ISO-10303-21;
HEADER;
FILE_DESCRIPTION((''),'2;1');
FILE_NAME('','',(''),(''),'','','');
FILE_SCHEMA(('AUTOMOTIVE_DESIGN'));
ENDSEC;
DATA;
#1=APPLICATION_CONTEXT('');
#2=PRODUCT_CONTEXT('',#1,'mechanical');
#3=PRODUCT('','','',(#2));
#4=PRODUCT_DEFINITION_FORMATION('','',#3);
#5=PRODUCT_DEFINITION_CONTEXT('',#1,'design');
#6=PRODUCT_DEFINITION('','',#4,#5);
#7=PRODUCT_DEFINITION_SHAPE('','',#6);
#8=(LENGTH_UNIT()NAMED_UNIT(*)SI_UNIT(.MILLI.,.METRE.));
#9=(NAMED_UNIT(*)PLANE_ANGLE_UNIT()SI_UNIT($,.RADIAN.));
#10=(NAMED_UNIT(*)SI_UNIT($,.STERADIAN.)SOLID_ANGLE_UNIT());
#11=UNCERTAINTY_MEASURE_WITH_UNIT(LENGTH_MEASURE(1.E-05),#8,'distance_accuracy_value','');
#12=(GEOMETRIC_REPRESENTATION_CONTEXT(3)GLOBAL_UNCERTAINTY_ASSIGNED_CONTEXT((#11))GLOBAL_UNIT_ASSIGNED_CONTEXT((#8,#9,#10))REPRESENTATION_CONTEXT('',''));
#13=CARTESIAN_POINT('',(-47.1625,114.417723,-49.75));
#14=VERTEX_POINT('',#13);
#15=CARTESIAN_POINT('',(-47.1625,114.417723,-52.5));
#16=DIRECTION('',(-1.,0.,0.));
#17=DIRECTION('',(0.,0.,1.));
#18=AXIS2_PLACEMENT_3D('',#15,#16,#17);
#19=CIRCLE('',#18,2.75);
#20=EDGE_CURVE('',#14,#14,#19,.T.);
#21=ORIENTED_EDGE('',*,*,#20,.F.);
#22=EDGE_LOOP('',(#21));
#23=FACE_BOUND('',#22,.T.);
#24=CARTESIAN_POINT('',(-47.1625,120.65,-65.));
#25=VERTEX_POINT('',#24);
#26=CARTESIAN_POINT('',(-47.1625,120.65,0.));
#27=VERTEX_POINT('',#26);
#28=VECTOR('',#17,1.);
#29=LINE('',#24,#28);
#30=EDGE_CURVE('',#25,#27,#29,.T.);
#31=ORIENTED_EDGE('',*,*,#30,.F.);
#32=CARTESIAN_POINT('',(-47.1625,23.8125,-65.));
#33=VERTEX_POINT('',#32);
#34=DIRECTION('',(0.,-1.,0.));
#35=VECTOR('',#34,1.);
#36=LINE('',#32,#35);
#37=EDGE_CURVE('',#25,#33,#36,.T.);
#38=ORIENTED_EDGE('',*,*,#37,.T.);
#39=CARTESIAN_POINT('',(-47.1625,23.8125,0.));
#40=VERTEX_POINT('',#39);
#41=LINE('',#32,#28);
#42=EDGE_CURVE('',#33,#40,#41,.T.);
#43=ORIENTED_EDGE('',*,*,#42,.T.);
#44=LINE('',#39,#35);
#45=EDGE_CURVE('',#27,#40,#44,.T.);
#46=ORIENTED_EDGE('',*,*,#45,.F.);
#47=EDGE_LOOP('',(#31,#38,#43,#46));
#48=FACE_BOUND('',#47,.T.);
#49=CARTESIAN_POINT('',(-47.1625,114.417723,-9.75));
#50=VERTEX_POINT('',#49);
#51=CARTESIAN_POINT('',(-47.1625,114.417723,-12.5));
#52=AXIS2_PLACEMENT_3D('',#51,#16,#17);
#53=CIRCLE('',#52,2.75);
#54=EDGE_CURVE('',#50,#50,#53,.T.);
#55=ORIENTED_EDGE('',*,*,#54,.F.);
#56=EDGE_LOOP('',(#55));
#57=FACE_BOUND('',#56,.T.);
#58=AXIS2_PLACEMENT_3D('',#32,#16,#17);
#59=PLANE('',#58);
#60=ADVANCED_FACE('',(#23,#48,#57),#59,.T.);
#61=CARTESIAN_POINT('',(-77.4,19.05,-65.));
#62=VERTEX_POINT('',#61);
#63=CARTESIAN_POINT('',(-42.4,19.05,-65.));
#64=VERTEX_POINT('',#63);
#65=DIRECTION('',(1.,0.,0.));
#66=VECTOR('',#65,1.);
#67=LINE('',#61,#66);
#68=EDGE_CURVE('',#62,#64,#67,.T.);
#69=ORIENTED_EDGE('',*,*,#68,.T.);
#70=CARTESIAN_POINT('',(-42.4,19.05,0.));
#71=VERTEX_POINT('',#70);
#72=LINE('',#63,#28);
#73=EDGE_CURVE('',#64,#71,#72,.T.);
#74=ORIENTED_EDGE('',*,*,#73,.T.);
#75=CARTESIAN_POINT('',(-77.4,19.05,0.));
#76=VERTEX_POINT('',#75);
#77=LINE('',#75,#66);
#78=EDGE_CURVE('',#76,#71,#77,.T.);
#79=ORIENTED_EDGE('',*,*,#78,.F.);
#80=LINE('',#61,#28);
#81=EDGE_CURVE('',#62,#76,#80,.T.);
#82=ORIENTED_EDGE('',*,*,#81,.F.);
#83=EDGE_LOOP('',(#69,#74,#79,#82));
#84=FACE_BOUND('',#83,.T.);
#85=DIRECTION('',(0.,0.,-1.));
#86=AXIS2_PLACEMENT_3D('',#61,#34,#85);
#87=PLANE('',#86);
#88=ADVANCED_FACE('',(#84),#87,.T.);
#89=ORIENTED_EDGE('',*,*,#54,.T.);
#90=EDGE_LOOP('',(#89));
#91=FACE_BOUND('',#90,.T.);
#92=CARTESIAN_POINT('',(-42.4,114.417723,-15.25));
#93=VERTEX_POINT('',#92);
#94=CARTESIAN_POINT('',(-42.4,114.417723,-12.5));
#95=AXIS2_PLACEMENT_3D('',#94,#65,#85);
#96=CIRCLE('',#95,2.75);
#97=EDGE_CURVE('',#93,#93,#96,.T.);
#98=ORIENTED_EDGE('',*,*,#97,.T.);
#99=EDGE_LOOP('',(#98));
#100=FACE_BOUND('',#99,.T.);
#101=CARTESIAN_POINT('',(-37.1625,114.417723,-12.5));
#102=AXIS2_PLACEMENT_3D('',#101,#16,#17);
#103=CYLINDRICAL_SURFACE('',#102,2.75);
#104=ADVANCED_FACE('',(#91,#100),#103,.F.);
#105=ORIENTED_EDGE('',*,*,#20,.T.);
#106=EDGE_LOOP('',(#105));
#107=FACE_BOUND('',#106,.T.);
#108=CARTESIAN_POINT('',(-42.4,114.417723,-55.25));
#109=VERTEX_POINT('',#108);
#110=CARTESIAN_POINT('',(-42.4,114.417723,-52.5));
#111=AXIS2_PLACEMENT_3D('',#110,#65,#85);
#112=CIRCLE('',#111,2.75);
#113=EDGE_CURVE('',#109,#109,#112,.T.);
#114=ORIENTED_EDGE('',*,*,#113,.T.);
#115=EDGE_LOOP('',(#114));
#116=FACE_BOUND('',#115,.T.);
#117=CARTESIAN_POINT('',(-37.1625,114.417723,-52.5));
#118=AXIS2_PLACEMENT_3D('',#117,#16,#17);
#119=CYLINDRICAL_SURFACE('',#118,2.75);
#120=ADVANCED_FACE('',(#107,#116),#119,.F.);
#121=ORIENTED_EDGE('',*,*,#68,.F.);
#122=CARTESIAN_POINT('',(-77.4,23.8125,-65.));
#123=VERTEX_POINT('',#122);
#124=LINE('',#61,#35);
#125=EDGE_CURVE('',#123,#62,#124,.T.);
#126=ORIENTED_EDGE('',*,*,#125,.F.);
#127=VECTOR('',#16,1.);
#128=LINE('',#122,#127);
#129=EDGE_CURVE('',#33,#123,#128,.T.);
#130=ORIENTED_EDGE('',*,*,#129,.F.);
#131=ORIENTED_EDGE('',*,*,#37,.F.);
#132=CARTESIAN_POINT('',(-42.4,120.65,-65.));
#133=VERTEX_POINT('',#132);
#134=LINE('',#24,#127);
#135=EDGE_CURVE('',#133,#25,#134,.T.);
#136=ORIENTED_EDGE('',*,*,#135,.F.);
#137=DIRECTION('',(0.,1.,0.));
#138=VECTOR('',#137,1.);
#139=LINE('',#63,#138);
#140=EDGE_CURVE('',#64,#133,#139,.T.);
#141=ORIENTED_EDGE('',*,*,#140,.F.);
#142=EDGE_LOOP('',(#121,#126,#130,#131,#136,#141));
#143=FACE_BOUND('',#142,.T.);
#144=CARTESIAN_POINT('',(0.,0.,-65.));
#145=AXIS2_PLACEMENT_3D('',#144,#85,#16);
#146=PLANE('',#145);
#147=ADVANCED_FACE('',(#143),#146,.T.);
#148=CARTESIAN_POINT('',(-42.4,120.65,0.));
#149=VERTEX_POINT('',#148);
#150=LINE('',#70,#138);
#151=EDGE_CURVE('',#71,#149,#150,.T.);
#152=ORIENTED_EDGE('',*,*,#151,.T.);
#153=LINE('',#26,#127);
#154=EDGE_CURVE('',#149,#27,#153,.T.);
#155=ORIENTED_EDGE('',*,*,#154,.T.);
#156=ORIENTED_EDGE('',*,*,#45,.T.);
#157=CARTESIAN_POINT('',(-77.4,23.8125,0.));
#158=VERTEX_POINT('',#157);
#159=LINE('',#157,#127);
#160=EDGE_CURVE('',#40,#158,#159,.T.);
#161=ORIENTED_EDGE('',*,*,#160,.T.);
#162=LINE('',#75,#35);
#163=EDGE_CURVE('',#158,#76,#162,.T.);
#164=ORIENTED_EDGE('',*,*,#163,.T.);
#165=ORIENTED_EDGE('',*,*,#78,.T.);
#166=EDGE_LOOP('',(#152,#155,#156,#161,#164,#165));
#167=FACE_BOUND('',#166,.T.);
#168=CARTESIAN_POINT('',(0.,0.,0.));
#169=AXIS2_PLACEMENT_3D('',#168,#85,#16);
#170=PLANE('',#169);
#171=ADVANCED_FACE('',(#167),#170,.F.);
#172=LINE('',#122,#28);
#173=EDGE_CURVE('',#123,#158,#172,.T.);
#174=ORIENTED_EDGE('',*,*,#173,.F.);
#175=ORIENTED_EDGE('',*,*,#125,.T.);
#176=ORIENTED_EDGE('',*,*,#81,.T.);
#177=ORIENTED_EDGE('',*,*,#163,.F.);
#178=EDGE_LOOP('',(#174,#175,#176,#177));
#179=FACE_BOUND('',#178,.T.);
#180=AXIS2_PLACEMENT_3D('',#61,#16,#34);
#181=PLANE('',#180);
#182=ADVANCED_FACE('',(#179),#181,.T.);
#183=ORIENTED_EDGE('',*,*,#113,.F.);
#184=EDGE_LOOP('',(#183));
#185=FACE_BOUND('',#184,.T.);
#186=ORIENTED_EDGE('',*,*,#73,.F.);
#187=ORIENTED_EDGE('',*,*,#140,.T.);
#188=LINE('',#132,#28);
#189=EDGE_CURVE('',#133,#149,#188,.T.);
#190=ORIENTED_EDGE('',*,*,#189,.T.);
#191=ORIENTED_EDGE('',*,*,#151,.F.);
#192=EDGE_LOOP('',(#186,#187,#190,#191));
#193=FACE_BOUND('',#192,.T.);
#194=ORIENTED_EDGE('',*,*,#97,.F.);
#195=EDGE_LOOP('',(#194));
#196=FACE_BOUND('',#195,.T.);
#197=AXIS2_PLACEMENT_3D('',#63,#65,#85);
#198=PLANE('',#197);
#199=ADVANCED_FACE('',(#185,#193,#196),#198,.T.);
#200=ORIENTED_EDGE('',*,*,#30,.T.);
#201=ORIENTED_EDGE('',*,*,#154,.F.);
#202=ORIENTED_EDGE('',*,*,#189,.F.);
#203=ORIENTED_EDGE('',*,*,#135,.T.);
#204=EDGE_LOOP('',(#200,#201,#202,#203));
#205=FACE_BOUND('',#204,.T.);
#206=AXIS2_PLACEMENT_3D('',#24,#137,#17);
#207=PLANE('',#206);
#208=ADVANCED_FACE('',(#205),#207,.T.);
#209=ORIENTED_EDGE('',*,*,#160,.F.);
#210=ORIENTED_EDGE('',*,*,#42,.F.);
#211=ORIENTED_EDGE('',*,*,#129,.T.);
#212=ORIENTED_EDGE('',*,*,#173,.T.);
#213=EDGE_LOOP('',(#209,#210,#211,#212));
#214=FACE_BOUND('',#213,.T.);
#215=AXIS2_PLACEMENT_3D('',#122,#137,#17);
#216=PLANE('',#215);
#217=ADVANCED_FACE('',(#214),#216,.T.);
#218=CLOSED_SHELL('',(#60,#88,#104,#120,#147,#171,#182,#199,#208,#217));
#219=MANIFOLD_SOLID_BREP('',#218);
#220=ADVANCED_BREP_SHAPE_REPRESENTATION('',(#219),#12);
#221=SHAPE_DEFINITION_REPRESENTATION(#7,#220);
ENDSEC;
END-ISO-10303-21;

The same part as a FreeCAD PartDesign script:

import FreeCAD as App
import Part
import Sketcher
from FreeCAD import Vector
Q = App.Units.Quantity


def add_polygon(sketch, points):
    """Adds a closed chain of lines whose ends are joined by coincident constraints."""
    first, n = sketch.GeometryCount, len(points)
    for a, b in zip(points, points[1:] + points[:1]):
        sketch.addGeometry(Part.LineSegment(App.Vector(*a, 0), App.Vector(*b, 0)), False)
    for i in range(n):
        sketch.addConstraint(Sketcher.Constraint("Coincident", first + i, 2, first + (i + 1) % n, 1))

doc = App.newDocument("Part")
body = doc.addObject("PartDesign::Body", "Body")

sketch1 = body.newObject("Sketcher::SketchObject", "Sketch")
sketch1.AttachmentSupport = (doc.getObject("XY_Plane"), [""])
sketch1.MapMode = "FlatFace"
add_polygon(sketch1, [(-77.4, 19.1), (-42.4, 19.1), (-42.4, 120.7), (-47.2, 120.7), (-47.2, 23.8), (-77.4, 23.8)])
sketch1.addConstraint(Sketcher.Constraint("Horizontal", 0))
sketch1.addConstraint(Sketcher.Constraint("Vertical", 1))
sketch1.addConstraint(Sketcher.Constraint("Horizontal", 2))
sketch1.addConstraint(Sketcher.Constraint("Vertical", 3))
sketch1.addConstraint(Sketcher.Constraint("Horizontal", 4))
sketch1.addConstraint(Sketcher.Constraint("Vertical", 5))
sketch1.addConstraint(Sketcher.Constraint("Equal", 2, 5))
sketch1.addConstraint(Sketcher.Constraint("DistanceX", 0, 1, 0, 2, Q("35 mm")))
sketch1.addConstraint(Sketcher.Constraint("DistanceY", 1, 1, 1, 2, Q("101.6 mm")))
sketch1.addConstraint(Sketcher.Constraint("DistanceX", 0, 2, -1, 1, Q("42.4 mm")))
sketch1.addConstraint(Sketcher.Constraint("DistanceY", -1, 1, 0, 2, Q("19.05 mm")))
sketch1.addConstraint(Sketcher.Constraint("DistanceX", 2, 2, 2, 1, Q("4.7625 mm")))
pad1 = body.newObject("PartDesign::Pad", "Pad")
pad1.Profile = sketch1
pad1.Length = 65
pad1.Reversed = True

sketch2 = body.newObject("Sketcher::SketchObject", "Sketch001")
sketch2.AttachmentSupport = (doc.getObject("YZ_Plane"), [""])
sketch2.MapMode = "FlatFace"
sketch2.AttachmentOffset = App.Placement(Vector(0, 0, -47.1625), App.Rotation())
sketch2.addGeometry(Part.Circle(Vector(114.4, -12.5, 0), Vector(0, 0, 1), 2.8), False)
sketch2.addGeometry(Part.Circle(Vector(114.4, -52.5, 0), Vector(0, 0, 1), 2.8), False)
sketch2.addConstraint(Sketcher.Constraint("Equal", 0, 1))
sketch2.addConstraint(Sketcher.Constraint("Vertical", 0, 3, 1, 3))
sketch2.addConstraint(Sketcher.Constraint("Diameter", 0, Q("5.5 mm")))
sketch2.addConstraint(Sketcher.Constraint("DistanceY", 1, 3, 0, 3, Q("40 mm")))
sketch2.addConstraint(Sketcher.Constraint("DistanceY", 0, 3, -1, 1, Q("12.5 mm")))
sketch2.addConstraint(Sketcher.Constraint("DistanceX", -1, 1, 0, 3, Q("114.417723 mm")))
pocket1 = body.newObject("PartDesign::Pocket", "Pocket")
pocket1.Profile = sketch2
pocket1.Length = 10
pocket1.Reversed = True

doc.recompute()
